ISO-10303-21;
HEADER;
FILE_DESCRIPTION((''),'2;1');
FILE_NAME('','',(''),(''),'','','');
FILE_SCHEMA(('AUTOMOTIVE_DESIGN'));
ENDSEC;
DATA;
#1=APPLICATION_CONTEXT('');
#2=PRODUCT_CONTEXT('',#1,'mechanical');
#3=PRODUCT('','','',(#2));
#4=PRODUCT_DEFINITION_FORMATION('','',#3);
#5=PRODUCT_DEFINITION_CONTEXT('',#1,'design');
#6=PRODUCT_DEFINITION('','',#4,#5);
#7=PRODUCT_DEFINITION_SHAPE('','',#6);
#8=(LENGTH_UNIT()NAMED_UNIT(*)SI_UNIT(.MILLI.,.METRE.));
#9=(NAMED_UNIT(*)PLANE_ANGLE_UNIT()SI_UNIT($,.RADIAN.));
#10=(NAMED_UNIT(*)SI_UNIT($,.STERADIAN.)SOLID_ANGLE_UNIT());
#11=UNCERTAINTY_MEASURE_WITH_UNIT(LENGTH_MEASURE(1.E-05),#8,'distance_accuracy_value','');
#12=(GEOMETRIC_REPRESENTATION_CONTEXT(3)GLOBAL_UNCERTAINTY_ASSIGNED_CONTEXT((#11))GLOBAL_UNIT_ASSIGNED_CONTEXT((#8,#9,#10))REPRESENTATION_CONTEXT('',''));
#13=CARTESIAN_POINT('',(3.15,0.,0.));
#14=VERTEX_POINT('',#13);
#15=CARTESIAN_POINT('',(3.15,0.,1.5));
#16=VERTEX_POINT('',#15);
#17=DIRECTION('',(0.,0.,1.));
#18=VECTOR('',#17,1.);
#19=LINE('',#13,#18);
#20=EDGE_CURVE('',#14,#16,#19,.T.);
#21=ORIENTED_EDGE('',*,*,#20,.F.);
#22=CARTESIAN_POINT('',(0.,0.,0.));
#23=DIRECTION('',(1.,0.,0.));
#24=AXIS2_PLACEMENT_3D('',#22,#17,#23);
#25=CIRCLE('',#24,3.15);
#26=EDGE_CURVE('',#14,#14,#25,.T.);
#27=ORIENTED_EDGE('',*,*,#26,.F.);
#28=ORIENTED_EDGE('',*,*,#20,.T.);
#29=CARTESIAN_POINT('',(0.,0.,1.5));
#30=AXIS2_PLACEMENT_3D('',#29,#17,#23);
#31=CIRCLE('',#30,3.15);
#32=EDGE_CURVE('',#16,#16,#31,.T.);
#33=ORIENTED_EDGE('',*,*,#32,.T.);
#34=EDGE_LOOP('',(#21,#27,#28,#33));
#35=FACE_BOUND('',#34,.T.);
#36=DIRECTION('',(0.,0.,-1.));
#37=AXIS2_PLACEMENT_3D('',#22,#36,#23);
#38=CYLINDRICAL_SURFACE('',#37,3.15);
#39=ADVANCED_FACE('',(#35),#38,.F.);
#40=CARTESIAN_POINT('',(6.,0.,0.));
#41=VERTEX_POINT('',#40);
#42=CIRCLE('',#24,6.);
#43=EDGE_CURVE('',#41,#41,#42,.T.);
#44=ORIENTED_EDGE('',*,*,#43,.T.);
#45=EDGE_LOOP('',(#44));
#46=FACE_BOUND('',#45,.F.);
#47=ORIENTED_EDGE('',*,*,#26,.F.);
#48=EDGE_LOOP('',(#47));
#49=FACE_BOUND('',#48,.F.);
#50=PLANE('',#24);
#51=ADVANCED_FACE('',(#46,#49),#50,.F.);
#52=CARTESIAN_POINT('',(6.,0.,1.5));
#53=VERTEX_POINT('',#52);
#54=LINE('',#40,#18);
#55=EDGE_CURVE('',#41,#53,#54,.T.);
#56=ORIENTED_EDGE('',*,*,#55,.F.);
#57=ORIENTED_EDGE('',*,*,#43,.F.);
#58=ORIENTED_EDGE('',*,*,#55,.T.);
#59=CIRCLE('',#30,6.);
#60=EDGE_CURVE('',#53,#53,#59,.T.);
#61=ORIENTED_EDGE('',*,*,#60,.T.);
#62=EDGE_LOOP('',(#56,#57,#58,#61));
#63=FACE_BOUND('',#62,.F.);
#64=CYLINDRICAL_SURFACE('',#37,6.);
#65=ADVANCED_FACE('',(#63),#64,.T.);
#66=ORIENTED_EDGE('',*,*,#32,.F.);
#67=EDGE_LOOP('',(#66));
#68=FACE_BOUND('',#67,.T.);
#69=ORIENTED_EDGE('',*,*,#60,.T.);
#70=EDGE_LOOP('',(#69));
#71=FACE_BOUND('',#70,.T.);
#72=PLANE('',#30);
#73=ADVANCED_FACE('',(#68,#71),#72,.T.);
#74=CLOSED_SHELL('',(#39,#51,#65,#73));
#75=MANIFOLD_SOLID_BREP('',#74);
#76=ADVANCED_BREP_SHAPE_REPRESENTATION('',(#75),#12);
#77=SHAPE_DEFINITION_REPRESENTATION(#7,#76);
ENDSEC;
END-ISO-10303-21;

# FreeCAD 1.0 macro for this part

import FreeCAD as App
import Part
import Sketcher
Q = App.Units.Quantity

doc = App.newDocument("Part")
body = doc.addObject("PartDesign::Body", "Body")

# Sketch on XY plane
sketch1 = doc.addObject("Sketcher::SketchObject", "Sketch")
body.addObject(sketch1)
sketch1.AttachmentSupport = (doc.XY_Plane, [""])
sketch1.MapMode = "FlatFace"
sketch1.addGeometry(Part.Circle(App.Vector(0, 0, 0), App.Vector(0, 0, 1), 6), False)
sketch1.addGeometry(Part.Circle(App.Vector(0, 0, 0), App.Vector(0, 0, 1), 3.1), False)
sketch1.addConstraint(Sketcher.Constraint("Coincident", 0, 3, -1, 1))
sketch1.addConstraint(Sketcher.Constraint("Coincident", 1, 3, -1, 1))
sketch1.addConstraint(Sketcher.Constraint("Diameter", 0, Q("12 mm")))
sketch1.addConstraint(Sketcher.Constraint("Diameter", 1, Q("6.3 mm")))
pad1 = doc.addObject("PartDesign::Pad", "Pad")
body.addObject(pad1)
pad1.Profile = sketch1
pad1.Length = 1.5

doc.recompute()
